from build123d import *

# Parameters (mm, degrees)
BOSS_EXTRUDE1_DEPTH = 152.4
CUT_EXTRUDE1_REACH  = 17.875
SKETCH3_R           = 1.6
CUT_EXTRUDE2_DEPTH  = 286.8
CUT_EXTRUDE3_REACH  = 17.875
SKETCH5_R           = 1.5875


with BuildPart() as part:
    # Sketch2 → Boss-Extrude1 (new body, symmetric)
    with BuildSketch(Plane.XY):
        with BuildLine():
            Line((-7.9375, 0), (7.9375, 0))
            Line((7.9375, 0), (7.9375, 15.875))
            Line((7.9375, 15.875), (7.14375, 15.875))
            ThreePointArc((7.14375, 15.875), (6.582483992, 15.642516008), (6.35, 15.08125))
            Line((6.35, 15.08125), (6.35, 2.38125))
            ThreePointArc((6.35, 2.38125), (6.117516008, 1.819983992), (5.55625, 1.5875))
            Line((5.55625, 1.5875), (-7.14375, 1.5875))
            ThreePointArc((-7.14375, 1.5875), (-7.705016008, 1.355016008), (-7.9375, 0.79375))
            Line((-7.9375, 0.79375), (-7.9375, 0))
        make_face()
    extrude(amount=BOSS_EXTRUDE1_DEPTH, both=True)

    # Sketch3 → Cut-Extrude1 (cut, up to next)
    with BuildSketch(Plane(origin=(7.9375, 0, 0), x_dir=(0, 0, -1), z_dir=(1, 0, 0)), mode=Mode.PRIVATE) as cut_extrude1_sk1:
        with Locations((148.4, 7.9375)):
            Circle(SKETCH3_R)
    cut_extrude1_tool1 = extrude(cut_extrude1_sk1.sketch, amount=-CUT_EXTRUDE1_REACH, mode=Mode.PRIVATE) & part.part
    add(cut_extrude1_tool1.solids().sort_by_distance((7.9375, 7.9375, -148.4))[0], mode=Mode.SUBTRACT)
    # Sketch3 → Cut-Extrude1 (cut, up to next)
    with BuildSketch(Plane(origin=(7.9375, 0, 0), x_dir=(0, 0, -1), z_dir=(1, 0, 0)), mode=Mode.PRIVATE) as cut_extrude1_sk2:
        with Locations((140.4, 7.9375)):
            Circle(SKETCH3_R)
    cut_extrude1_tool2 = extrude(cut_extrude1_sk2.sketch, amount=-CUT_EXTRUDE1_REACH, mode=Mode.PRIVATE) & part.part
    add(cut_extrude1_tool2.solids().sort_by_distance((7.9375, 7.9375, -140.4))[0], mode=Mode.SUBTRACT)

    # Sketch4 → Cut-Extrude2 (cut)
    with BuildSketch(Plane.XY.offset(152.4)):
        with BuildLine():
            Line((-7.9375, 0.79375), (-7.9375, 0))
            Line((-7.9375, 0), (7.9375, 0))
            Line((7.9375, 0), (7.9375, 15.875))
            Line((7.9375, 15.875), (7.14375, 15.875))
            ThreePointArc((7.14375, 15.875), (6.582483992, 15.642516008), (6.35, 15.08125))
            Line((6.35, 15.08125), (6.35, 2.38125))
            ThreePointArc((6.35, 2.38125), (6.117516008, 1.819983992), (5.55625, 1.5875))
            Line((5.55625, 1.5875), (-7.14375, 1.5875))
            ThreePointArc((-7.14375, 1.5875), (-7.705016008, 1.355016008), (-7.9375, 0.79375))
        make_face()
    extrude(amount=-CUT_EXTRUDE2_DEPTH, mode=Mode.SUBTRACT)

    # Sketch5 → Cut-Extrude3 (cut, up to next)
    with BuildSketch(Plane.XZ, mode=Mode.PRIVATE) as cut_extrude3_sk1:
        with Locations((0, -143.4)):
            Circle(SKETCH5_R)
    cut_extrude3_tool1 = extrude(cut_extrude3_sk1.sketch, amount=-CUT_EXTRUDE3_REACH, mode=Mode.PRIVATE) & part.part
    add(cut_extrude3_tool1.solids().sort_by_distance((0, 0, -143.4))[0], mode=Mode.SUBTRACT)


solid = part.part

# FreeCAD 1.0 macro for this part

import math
import FreeCAD as App
import Part
import Sketcher
from FreeCAD import Vector
Q = App.Units.Quantity

doc = App.newDocument("Part")
body = doc.addObject("PartDesign::Body", "Body")

# Sketch on XY plane
sketch1 = body.newObject("Sketcher::SketchObject", "Sketch")
sketch1.AttachmentSupport = (doc.getObject("XY_Plane"), [""])
sketch1.MapMode = "FlatFace"
sketch1.addGeometry(Part.LineSegment(Vector(-7.9375, 0, 0), Vector(7.9375, 0, 0)), False)
sketch1.addGeometry(Part.LineSegment(Vector(7.9375, 0, 0), Vector(7.9375, 15.875, 0)), False)
sketch1.addGeometry(Part.LineSegment(Vector(7.9375, 15.875, 0), Vector(7.14375, 15.875, 0)), False)
sketch1.addGeometry(Part.ArcOfCircle(Part.Circle(Vector(7.14375, 15.08125, 0), Vector(0, 0, 1), 0.79375), math.radians(90), math.radians(180)), False)
sketch1.addGeometry(Part.LineSegment(Vector(6.35, 15.08125, 0), Vector(6.35, 2.38125, 0)), False)
sketch1.addGeometry(Part.ArcOfCircle(Part.Circle(Vector(5.55625, 2.38125, 0), Vector(0, 0, 1), 0.79375), math.radians(-90), math.radians(0)), False)
sketch1.addGeometry(Part.LineSegment(Vector(5.55625, 1.5875, 0), Vector(-7.14375, 1.5875, 0)), False)
sketch1.addGeometry(Part.ArcOfCircle(Part.Circle(Vector(-7.14375, 0.79375, 0), Vector(0, 0, 1), 0.79375), math.radians(90), math.radians(180)), False)
sketch1.addGeometry(Part.LineSegment(Vector(-7.9375, 0.79375, 0), Vector(-7.9375, 0, 0)), False)
sketch1.addConstraint(Sketcher.Constraint("Coincident", 0, 2, 1, 1))
sketch1.addConstraint(Sketcher.Constraint("Coincident", 1, 2, 2, 1))
sketch1.addConstraint(Sketcher.Constraint("Tangent", 2, 2, 3, 1))
sketch1.addConstraint(Sketcher.Constraint("Tangent", 3, 2, 4, 1))
sketch1.addConstraint(Sketcher.Constraint("Tangent", 4, 2, 5, 2))
sketch1.addConstraint(Sketcher.Constraint("Tangent", 5, 1, 6, 1))
sketch1.addConstraint(Sketcher.Constraint("Tangent", 6, 2, 7, 1))
sketch1.addConstraint(Sketcher.Constraint("Tangent", 7, 2, 8, 1))
sketch1.addConstraint(Sketcher.Constraint("Coincident", 8, 2, 0, 1))
sketch1.addConstraint(Sketcher.Constraint("Horizontal", 0))
sketch1.addConstraint(Sketcher.Constraint("Vertical", 1))
sketch1.addConstraint(Sketcher.Constraint("Horizontal", 2))
sketch1.addConstraint(Sketcher.Constraint("Vertical", 4))
sketch1.addConstraint(Sketcher.Constraint("Horizontal", 6))
sketch1.addConstraint(Sketcher.Constraint("Vertical", 8))
sketch1.addConstraint(Sketcher.Constraint("Equal", 3, 5))
sketch1.addConstraint(Sketcher.Constraint("Equal", 5, 7))
sketch1.addConstraint(Sketcher.Constraint("Symmetric", 0, 2, 8, 2, -1, 1))
sketch1.addConstraint(Sketcher.Constraint("Equal", 0, 1))
sketch1.addConstraint(Sketcher.Constraint("Equal", 6, 4))
sketch1.addConstraint(Sketcher.Constraint("DistanceX", 6, 2, 6, 1, Q("0.5 in")))
sketch1.addConstraint(Sketcher.Constraint("Radius", 3, Q("0.03125 in")))
sketch1.addConstraint(Sketcher.Constraint("DistanceX", 0, 1, 0, 2, Q("0.625 in")))
pad1 = body.newObject("PartDesign::Pad", "Pad")
pad1.Profile = sketch1
pad1.Length = Q("12 in")
pad1.Midplane = True

# Sketch on YZ plane
sketch2 = body.newObject("Sketcher::SketchObject", "Sketch001")
sketch2.AttachmentSupport = (doc.getObject("YZ_Plane"), [""])
sketch2.MapMode = "FlatFace"
sketch2.AttachmentOffset = App.Placement(Vector(0, 0, 0.3125 * 25.4), App.Rotation())
sketch2.addGeometry(Part.Circle(Vector(7.9375, -148.4, 0), Vector(0, 0, 1), 1.6), False)
sketch2.addConstraint(Sketcher.Constraint("Diameter", 0, Q("3.2 mm")))
sketch2.addConstraint(Sketcher.Constraint("DistanceX", -1, 1, 0, 3, Q("0.3125 in")))
sketch2.addConstraint(Sketcher.Constraint("DistanceY", 0, 3, -1, 1, Q("148.4 mm")))
pocket1 = body.newObject("PartDesign::Pocket", "Pocket")
pocket1.Profile = sketch2
pocket1.Type = "UpToFirst"

# Sketch on YZ plane
sketch3 = body.newObject("Sketcher::SketchObject", "Sketch002")
sketch3.AttachmentSupport = (doc.getObject("YZ_Plane"), [""])
sketch3.MapMode = "FlatFace"
sketch3.AttachmentOffset = App.Placement(Vector(0, 0, 0.3125 * 25.4), App.Rotation())
sketch3.addGeometry(Part.Circle(Vector(7.9375, -140.4, 0), Vector(0, 0, 1), 1.6), False)
sketch3.addConstraint(Sketcher.Constraint("Diameter", 0, Q("3.2 mm")))
sketch3.addConstraint(Sketcher.Constraint("DistanceX", -1, 1, 0, 3, Q("0.3125 in")))
sketch3.addConstraint(Sketcher.Constraint("DistanceY", 0, 3, -1, 1, Q("140.4 mm")))
pocket2 = body.newObject("PartDesign::Pocket", "Pocket001")
pocket2.Profile = sketch3
pocket2.Type = "UpToFirst"

# Sketch on XY plane
sketch4 = body.newObject("Sketcher::SketchObject", "Sketch003")
sketch4.AttachmentSupport = (doc.getObject("XY_Plane"), [""])
sketch4.MapMode = "FlatFace"
sketch4.AttachmentOffset = App.Placement(Vector(0, 0, 6 * 25.4), App.Rotation())
sketch4.addGeometry(Part.LineSegment(Vector(-7.9375, 0.79375, 0), Vector(-7.9375, 0, 0)), False)
sketch4.addGeometry(Part.LineSegment(Vector(-7.9375, 0, 0), Vector(7.9375, 0, 0)), False)
sketch4.addGeometry(Part.LineSegment(Vector(7.9375, 0, 0), Vector(7.9375, 15.875, 0)), False)
sketch4.addGeometry(Part.LineSegment(Vector(7.9375, 15.875, 0), Vector(7.14375, 15.875, 0)), False)
sketch4.addGeometry(Part.ArcOfCircle(Part.Circle(Vector(7.14375, 15.08125, 0), Vector(0, 0, 1), 0.79375), math.radians(90), math.radians(180)), False)
sketch4.addGeometry(Part.LineSegment(Vector(6.35, 15.08125, 0), Vector(6.35, 2.38125, 0)), False)
sketch4.addGeometry(Part.ArcOfCircle(Part.Circle(Vector(5.55625, 2.38125, 0), Vector(0, 0, 1), 0.79375), math.radians(-90), math.radians(0)), False)
sketch4.addGeometry(Part.LineSegment(Vector(5.55625, 1.5875, 0), Vector(-7.14375, 1.5875, 0)), False)
sketch4.addGeometry(Part.ArcOfCircle(Part.Circle(Vector(-7.14375, 0.79375, 0), Vector(0, 0, 1), 0.79375), math.radians(90), math.radians(180)), False)
sketch4.addConstraint(Sketcher.Constraint("Coincident", 0, 2, 1, 1))
sketch4.addConstraint(Sketcher.Constraint("Coincident", 1, 2, 2, 1))
sketch4.addConstraint(Sketcher.Constraint("Coincident", 2, 2, 3, 1))
sketch4.addConstraint(Sketcher.Constraint("Tangent", 3, 2, 4, 1))
sketch4.addConstraint(Sketcher.Constraint("Tangent", 4, 2, 5, 1))
sketch4.addConstraint(Sketcher.Constraint("Tangent", 5, 2, 6, 2))
sketch4.addConstraint(Sketcher.Constraint("Tangent", 6, 1, 7, 1))
sketch4.addConstraint(Sketcher.Constraint("Tangent", 7, 2, 8, 1))
sketch4.addConstraint(Sketcher.Constraint("Tangent", 8, 2, 0, 1))
sketch4.addConstraint(Sketcher.Constraint("Vertical", 0))
sketch4.addConstraint(Sketcher.Constraint("Horizontal", 1))
sketch4.addConstraint(Sketcher.Constraint("Vertical", 2))
sketch4.addConstraint(Sketcher.Constraint("Horizontal", 3))
sketch4.addConstraint(Sketcher.Constraint("Vertical", 5))
sketch4.addConstraint(Sketcher.Constraint("Horizontal", 7))
sketch4.addConstraint(Sketcher.Constraint("Equal", 4, 6))
sketch4.addConstraint(Sketcher.Constraint("Equal", 6, 8))
sketch4.addConstraint(Sketcher.Constraint("Symmetric", 0, 2, 1, 2, -1, 1))
sketch4.addConstraint(Sketcher.Constraint("Equal", 3, 0))
sketch4.addConstraint(Sketcher.Constraint("Equal", 1, 2))
sketch4.addConstraint(Sketcher.Constraint("DistanceX", 7, 2, 7, 1, Q("0.5 in")))
sketch4.addConstraint(Sketcher.Constraint("Radius", 4, Q("0.03125 in")))
sketch4.addConstraint(Sketcher.Constraint("DistanceX", 1, 1, 1, 2, Q("0.625 in")))
pocket3 = body.newObject("PartDesign::Pocket", "Pocket002")
pocket3.Profile = sketch4
pocket3.Length = 286.8

# Sketch on XZ plane
sketch5 = body.newObject("Sketcher::SketchObject", "Sketch004")
sketch5.AttachmentSupport = (doc.getObject("XZ_Plane"), [""])
sketch5.MapMode = "FlatFace"
sketch5.addGeometry(Part.Circle(Vector(0, -143.4, 0), Vector(0, 0, 1), 1.5875), False)
sketch5.addConstraint(Sketcher.Constraint("PointOnObject", 0, 3, -2))
sketch5.addConstraint(Sketcher.Constraint("Diameter", 0, Q("0.125 in")))
sketch5.addConstraint(Sketcher.Constraint("DistanceY", 0, 3, -1, 1, Q("143.4 mm")))
pocket4 = body.newObject("PartDesign::Pocket", "Pocket003")
pocket4.Profile = sketch5
pocket4.Type = "UpToFirst"

doc.recompute()
